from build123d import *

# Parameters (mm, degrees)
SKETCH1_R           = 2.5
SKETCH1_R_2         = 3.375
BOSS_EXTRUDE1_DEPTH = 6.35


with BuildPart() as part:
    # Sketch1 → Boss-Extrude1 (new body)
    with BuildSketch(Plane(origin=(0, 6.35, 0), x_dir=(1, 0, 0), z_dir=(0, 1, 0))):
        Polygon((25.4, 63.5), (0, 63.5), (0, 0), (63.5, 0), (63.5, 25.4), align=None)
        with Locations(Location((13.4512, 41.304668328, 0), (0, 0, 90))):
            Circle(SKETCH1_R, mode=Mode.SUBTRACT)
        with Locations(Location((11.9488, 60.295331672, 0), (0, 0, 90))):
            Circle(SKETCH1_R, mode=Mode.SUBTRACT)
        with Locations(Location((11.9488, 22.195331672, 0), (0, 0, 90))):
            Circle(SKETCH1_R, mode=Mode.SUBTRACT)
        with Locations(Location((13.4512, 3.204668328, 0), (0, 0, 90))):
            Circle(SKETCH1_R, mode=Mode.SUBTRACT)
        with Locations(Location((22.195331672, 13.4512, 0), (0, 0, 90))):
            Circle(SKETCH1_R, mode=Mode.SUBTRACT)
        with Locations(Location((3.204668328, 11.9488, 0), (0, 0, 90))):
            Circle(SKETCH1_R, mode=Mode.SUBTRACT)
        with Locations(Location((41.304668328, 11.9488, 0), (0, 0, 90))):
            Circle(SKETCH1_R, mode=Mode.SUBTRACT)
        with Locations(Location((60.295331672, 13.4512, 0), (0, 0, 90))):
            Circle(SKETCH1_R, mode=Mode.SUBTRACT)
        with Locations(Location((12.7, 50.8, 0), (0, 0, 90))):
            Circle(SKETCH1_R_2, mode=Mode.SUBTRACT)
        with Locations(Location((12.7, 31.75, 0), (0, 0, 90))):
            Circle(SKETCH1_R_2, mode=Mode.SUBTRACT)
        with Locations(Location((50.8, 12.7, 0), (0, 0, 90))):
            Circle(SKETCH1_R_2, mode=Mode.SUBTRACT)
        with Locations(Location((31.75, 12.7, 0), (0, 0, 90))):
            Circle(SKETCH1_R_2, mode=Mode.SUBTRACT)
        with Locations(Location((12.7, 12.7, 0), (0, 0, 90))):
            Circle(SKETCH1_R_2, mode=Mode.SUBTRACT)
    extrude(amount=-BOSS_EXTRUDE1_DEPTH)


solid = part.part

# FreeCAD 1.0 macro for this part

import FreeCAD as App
import Part
import Sketcher
from FreeCAD import Vector
Q = App.Units.Quantity


def add_polygon(sketch, points):
    """Adds a closed chain of lines whose ends are joined by coincident constraints."""
    first, n = sketch.GeometryCount, len(points)
    for a, b in zip(points, points[1:] + points[:1]):
        sketch.addGeometry(Part.LineSegment(App.Vector(*a, 0), App.Vector(*b, 0)), False)
    for i in range(n):
        sketch.addConstraint(Sketcher.Constraint("Coincident", first + i, 2, first + (i + 1) % n, 1))

doc = App.newDocument("Part")
params = doc.addObject("Spreadsheet::Sheet", "Params")
for row, (alias, value) in enumerate([
    ("sketch1_width", "1 in"),
    ("sketch1_width2", "2.5 in"),
    ("pad1_length", "0.25 in"),
], start=1):
    params.set(f"A{row}", alias)
    params.set(f"B{row}", "=" + value)
    params.setAlias(f"B{row}", alias)

body = doc.addObject("PartDesign::Body", "Body")

# Sketch on XZ plane
sketch1 = body.newObject("Sketcher::SketchObject", "Sketch")
sketch1.AttachmentSupport = (doc.getObject("XZ_Plane"), [""])
sketch1.MapMode = "FlatFace"
sketch1.AttachmentOffset = App.Placement(Vector(0, 0, -0.25 * 25.4), App.Rotation())
add_polygon(sketch1, [(25.4, -63.5), (0, -63.5), (0, 0), (63.5, 0), (63.5, -25.4)])  # lines 0-4
sketch1.addGeometry(Part.Circle(Vector(13.5, -3.2, 0), Vector(0, 0, 1), 2.5), False)  # 5
sketch1.addGeometry(Part.Circle(Vector(3.2, -11.9, 0), Vector(0, 0, 1), 2.5), False)  # 6
sketch1.addGeometry(Part.Circle(Vector(12.7, -12.7, 0), Vector(0, 0, 1), 3.4), False)  # 7
sketch1.addGeometry(Part.Circle(Vector(22.2, -13.5, 0), Vector(0, 0, 1), 2.5), False)  # 8
sketch1.addGeometry(Part.Circle(Vector(31.8, -12.7, 0), Vector(0, 0, 1), 3.4), False)  # 9
sketch1.addGeometry(Part.Circle(Vector(11.9, -22.2, 0), Vector(0, 0, 1), 2.5), False)  # 10
sketch1.addGeometry(Part.Circle(Vector(12.7, -31.8, 0), Vector(0, 0, 1), 3.4), False)  # 11
sketch1.addGeometry(Part.Circle(Vector(41.3, -11.9, 0), Vector(0, 0, 1), 2.5), False)  # 12
sketch1.addGeometry(Part.Circle(Vector(50.8, -12.7, 0), Vector(0, 0, 1), 3.4), False)  # 13
sketch1.addGeometry(Part.Circle(Vector(60.3, -13.5, 0), Vector(0, 0, 1), 2.5), False)  # 14
sketch1.addGeometry(Part.Circle(Vector(13.5, -41.3, 0), Vector(0, 0, 1), 2.5), False)  # 15
sketch1.addGeometry(Part.Circle(Vector(12.7, -50.8, 0), Vector(0, 0, 1), 3.4), False)  # 16
sketch1.addGeometry(Part.Circle(Vector(11.9, -60.3, 0), Vector(0, 0, 1), 2.5), False)  # 17
sketch1.addConstraint(Sketcher.Constraint("Horizontal", 0))
sketch1.addConstraint(Sketcher.Constraint("Vertical", 1))
sketch1.addConstraint(Sketcher.Constraint("Horizontal", 2))
sketch1.addConstraint(Sketcher.Constraint("Vertical", 3))
sketch1.addConstraint(Sketcher.Constraint("Coincident", 1, 2, -1, 1))
sketch1.addConstraint(Sketcher.Constraint("Equal", 5, 6))
sketch1.addConstraint(Sketcher.Constraint("Equal", 6, 8))
sketch1.addConstraint(Sketcher.Constraint("Equal", 7, 9))
sketch1.addConstraint(Sketcher.Constraint("Equal", 8, 10))
sketch1.addConstraint(Sketcher.Constraint("Equal", 9, 11))
sketch1.addConstraint(Sketcher.Constraint("Equal", 10, 12))
sketch1.addConstraint(Sketcher.Constraint("Equal", 11, 13))
sketch1.addConstraint(Sketcher.Constraint("Equal", 12, 14))
sketch1.addConstraint(Sketcher.Constraint("Equal", 14, 15))
sketch1.addConstraint(Sketcher.Constraint("Equal", 13, 16))
sketch1.addConstraint(Sketcher.Constraint("Equal", 15, 17))
sketch1.addConstraint(Sketcher.Constraint("Horizontal", 7, 3, 9, 3))
sketch1.addConstraint(Sketcher.Constraint("Horizontal", 6, 3, 12, 3))
sketch1.addConstraint(Sketcher.Constraint("Horizontal", 9, 3, 13, 3))
sketch1.addConstraint(Sketcher.Constraint("Horizontal", 8, 3, 14, 3))
sketch1.addConstraint(Sketcher.Constraint("Vertical", 7, 3, 11, 3))
sketch1.addConstraint(Sketcher.Constraint("Vertical", 5, 3, 15, 3))
sketch1.addConstraint(Sketcher.Constraint("Vertical", 11, 3, 16, 3))
sketch1.addConstraint(Sketcher.Constraint("Vertical", 10, 3, 17, 3))
sketch1.addConstraint(Sketcher.Constraint("Equal", 2, 1))
sketch1.addConstraint(Sketcher.Constraint("Equal", 0, 3))
sketch1.addConstraint(Sketcher.Constraint("DistanceX", 0, 2, 0, 1, Q("1 in")))
sketch1.addConstraint(Sketcher.Constraint("DistanceX", 2, 1, 2, 2, Q("2.5 in")))
sketch1.addConstraint(Sketcher.Constraint("DistanceX", -1, 1, 13, 3, Q("2 in")))
sketch1.addConstraint(Sketcher.Constraint("DistanceY", 16, 3, -1, 1, Q("2 in")))
sketch1.addConstraint(Sketcher.Constraint("DistanceX", -1, 1, 7, 3, Q("0.5 in")))
sketch1.addConstraint(Sketcher.Constraint("DistanceY", 7, 3, -1, 1, Q("0.5 in")))
sketch1.addConstraint(Sketcher.Constraint("DistanceX", 8, 3, 14, 3, Q("1.5 in")))
sketch1.addConstraint(Sketcher.Constraint("DistanceY", 17, 3, 10, 3, Q("1.5 in")))
sketch1.addConstraint(Sketcher.Constraint("Diameter", 5, Q("5 mm")))
sketch1.addConstraint(Sketcher.Constraint("Diameter", 7, Q("6.75 mm")))
sketch1.addConstraint(Sketcher.Constraint("DistanceX", -1, 1, 9, 3, Q("1.25 in")))
sketch1.addConstraint(Sketcher.Constraint("DistanceY", 11, 3, -1, 1, Q("1.25 in")))
sketch1.addConstraint(Sketcher.Constraint("DistanceX", -1, 1, 5, 3, Q("13.4512 mm")))
sketch1.addConstraint(Sketcher.Constraint("DistanceY", 6, 3, -1, 1, Q("11.9488 mm")))
sketch1.addConstraint(Sketcher.Constraint("DistanceY", 8, 3, -1, 1, Q("13.4512 mm")))
sketch1.addConstraint(Sketcher.Constraint("DistanceX", -1, 1, 10, 3, Q("11.9488 mm")))
sketch1.addConstraint(Sketcher.Constraint("DistanceY", 5, 3, -1, 1, Q("3.204668 mm")))
sketch1.addConstraint(Sketcher.Constraint("DistanceX", -1, 1, 6, 3, Q("3.204668 mm")))
sketch1.addConstraint(Sketcher.Constraint("DistanceX", -1, 1, 8, 3, Q("22.195332 mm")))
sketch1.addConstraint(Sketcher.Constraint("DistanceY", 10, 3, -1, 1, Q("22.195332 mm")))
sketch1.addConstraint(Sketcher.Constraint("DistanceX", -1, 1, 12, 3, Q("41.304668 mm")))
sketch1.addConstraint(Sketcher.Constraint("DistanceY", 15, 3, -1, 1, Q("41.304668 mm")))
sketch1.setExpression("Constraints[31]", "Params.sketch1_width")
sketch1.setExpression("Constraints[32]", "Params.sketch1_width2")
pad1 = body.newObject("PartDesign::Pad", "Pad")
pad1.Profile = sketch1
pad1.setExpression("Length", "Params.pad1_length")

doc.recompute()
